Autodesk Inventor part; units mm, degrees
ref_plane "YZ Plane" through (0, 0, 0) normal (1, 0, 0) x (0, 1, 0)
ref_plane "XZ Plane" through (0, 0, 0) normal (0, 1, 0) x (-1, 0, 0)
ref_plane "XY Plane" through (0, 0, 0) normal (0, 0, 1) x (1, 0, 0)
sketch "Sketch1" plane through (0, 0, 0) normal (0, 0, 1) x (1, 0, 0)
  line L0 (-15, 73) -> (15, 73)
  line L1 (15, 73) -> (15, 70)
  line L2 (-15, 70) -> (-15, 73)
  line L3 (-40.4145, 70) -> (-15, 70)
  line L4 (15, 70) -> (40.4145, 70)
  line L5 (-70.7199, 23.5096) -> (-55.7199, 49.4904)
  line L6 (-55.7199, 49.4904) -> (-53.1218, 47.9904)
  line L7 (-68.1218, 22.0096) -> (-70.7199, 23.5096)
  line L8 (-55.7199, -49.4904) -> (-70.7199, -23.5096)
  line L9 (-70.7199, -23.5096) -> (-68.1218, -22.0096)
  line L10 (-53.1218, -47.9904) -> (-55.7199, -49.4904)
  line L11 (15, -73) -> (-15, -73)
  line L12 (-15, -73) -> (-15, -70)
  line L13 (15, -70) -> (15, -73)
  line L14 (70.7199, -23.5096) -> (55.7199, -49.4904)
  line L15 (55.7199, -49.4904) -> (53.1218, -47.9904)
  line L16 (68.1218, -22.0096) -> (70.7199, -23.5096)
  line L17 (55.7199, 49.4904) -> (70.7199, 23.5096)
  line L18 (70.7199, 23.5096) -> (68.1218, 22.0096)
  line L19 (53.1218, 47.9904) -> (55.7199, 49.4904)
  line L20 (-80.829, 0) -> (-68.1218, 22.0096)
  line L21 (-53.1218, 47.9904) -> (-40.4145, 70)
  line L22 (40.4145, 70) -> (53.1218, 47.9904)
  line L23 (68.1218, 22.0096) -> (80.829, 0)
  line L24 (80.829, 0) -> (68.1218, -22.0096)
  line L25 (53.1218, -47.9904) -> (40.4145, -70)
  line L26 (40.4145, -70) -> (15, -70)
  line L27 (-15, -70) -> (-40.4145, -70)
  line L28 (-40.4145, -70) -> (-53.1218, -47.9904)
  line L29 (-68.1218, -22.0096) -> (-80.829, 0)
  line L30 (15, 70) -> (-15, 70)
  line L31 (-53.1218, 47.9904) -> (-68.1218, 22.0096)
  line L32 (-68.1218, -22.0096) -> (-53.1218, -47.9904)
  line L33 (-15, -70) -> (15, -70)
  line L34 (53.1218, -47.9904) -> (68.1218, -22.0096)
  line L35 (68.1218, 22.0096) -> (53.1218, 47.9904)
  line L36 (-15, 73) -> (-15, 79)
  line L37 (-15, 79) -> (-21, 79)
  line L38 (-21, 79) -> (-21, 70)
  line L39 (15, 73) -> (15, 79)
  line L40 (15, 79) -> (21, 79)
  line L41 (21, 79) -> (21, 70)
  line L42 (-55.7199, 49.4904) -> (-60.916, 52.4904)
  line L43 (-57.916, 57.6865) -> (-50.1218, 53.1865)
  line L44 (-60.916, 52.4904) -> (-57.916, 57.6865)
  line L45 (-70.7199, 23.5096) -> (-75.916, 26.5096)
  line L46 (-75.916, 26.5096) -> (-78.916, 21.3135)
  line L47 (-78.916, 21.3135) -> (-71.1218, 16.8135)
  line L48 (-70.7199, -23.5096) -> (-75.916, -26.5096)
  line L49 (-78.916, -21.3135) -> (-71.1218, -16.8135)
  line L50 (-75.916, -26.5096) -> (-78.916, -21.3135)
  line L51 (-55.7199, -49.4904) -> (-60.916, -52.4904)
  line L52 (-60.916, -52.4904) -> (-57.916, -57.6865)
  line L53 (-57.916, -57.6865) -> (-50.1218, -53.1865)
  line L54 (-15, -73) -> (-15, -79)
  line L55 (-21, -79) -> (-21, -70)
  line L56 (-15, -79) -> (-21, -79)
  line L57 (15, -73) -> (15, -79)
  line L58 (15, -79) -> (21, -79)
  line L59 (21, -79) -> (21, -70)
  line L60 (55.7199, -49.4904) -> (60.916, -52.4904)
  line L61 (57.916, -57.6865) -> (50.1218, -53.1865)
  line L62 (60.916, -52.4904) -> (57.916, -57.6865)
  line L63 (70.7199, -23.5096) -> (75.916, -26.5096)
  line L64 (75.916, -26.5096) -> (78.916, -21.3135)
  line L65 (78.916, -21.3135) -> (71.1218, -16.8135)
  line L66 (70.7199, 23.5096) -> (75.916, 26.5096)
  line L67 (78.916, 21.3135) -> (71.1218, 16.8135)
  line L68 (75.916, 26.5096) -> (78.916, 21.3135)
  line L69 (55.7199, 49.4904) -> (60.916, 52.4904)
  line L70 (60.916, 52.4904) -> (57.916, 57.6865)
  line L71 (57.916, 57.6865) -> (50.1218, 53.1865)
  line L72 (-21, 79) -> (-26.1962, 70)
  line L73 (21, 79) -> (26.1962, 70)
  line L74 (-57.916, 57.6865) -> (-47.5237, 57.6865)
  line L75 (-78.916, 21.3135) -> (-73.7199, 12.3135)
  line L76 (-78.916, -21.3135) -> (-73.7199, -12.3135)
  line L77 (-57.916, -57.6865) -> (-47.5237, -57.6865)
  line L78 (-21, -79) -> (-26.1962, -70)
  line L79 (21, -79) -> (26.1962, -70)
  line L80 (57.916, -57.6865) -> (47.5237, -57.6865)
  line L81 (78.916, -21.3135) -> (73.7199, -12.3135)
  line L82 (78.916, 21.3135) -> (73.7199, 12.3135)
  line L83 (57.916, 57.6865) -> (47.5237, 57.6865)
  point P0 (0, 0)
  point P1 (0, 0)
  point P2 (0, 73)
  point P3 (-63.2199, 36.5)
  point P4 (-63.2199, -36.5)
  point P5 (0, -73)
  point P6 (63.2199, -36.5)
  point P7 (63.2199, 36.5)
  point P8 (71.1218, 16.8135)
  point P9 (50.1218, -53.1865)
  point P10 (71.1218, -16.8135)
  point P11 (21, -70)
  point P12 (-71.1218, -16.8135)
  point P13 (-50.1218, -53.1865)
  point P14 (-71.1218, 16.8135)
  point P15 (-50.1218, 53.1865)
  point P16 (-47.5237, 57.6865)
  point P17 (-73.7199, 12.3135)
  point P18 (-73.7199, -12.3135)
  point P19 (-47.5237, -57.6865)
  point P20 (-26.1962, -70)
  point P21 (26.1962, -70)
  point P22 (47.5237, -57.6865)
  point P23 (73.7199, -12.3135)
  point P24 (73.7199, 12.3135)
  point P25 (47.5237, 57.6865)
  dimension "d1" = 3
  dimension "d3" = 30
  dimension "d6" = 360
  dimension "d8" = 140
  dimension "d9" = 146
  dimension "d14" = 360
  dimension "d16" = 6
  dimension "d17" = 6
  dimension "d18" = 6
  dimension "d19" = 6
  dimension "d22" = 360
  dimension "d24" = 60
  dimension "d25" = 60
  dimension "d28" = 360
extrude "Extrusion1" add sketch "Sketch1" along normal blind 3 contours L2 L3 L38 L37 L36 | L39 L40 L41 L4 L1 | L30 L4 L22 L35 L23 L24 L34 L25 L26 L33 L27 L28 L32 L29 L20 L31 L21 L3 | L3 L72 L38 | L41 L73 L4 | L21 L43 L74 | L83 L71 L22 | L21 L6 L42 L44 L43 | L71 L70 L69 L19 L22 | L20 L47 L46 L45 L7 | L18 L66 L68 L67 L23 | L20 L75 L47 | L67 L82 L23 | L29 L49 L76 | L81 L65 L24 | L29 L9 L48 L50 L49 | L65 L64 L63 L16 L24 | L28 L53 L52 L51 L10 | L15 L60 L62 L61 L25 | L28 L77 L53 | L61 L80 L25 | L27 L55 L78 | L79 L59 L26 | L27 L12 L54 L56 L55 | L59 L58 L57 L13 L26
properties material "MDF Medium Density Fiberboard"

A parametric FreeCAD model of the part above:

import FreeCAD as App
import Part
import Sketcher

V = App.Vector
Q = App.Units.Quantity

doc = App.newDocument("Part")
body = doc.addObject("PartDesign::Body", "Body")

# Sketch on XY plane
sketch1 = body.newObject("Sketcher::SketchObject", "Sketch")
sketch1.AttachmentSupport = (doc.getObject("XY_Plane"), [""])
sketch1.MapMode = "FlatFace"
sketch1.addGeometry([
    Part.LineSegment(V(-15, 70, 0), V(-15, 79, 0)),  # 0
    Part.LineSegment(V(-15, 79, 0), V(-21, 79, 0)),  # 1
    Part.LineSegment(V(-21, 79, 0), V(-26.1962, 70, 0)),  # 2
    Part.LineSegment(V(-26.1962, 70, 0), V(-40.4145, 70, 0)),  # 3
    Part.LineSegment(V(-40.4145, 70, 0), V(-47.523724, 57.686514, 0)),  # 4
    Part.LineSegment(V(-47.5237, 57.6865, 0), V(-57.916, 57.6865, 0)),  # 5
    Part.LineSegment(V(-57.916, 57.6865, 0), V(-60.916, 52.4904, 0)),  # 6
    Part.LineSegment(V(-60.916, 52.4904, 0), V(-55.7199, 49.4904, 0)),  # 7
    Part.LineSegment(V(-55.7199, 49.4904, 0), V(-53.1218, 47.9904, 0)),  # 8
    Part.LineSegment(V(-53.1218, 47.9904, 0), V(-68.1218, 22.0096, 0)),  # 9
    Part.LineSegment(V(-68.1218, 22.0096, 0), V(-70.7199, 23.5096, 0)),  # 10
    Part.LineSegment(V(-70.7199, 23.5096, 0), V(-75.916, 26.5096, 0)),  # 11
    Part.LineSegment(V(-75.916, 26.5096, 0), V(-78.916, 21.3135, 0)),  # 12
    Part.LineSegment(V(-78.916, 21.3135, 0), V(-73.7199, 12.3135, 0)),  # 13
    Part.LineSegment(V(-73.719843, 12.313467, 0), V(-80.829, 0, 0)),  # 14
    Part.LineSegment(V(-80.829, 0, 0), V(-73.719843, -12.313467, 0)),  # 15
    Part.LineSegment(V(-73.7199, -12.3135, 0), V(-78.916, -21.3135, 0)),  # 16
    Part.LineSegment(V(-78.916, -21.3135, 0), V(-75.916, -26.5096, 0)),  # 17
    Part.LineSegment(V(-75.916, -26.5096, 0), V(-70.7199, -23.5096, 0)),  # 18
    Part.LineSegment(V(-70.7199, -23.5096, 0), V(-68.1218, -22.0096, 0)),  # 19
    Part.LineSegment(V(-68.1218, -22.0096, 0), V(-53.1218, -47.9904, 0)),  # 20
    Part.LineSegment(V(-53.1218, -47.9904, 0), V(-55.7199, -49.4904, 0)),  # 21
    Part.LineSegment(V(-55.7199, -49.4904, 0), V(-60.916, -52.4904, 0)),  # 22
    Part.LineSegment(V(-60.916, -52.4904, 0), V(-57.916, -57.6865, 0)),  # 23
    Part.LineSegment(V(-57.916, -57.6865, 0), V(-47.5237, -57.6865, 0)),  # 24
    Part.LineSegment(V(-47.523724, -57.686514, 0), V(-40.4145, -70, 0)),  # 25
    Part.LineSegment(V(-40.4145, -70, 0), V(-26.1962, -70, 0)),  # 26
    Part.LineSegment(V(-26.1962, -70, 0), V(-21, -79, 0)),  # 27
    Part.LineSegment(V(-21, -79, 0), V(-15, -79, 0)),  # 28
    Part.LineSegment(V(-15, -79, 0), V(-15, -70, 0)),  # 29
    Part.LineSegment(V(-15, -70, 0), V(15, -70, 0)),  # 30
    Part.LineSegment(V(15, -70, 0), V(15, -79, 0)),  # 31
    Part.LineSegment(V(15, -79, 0), V(21, -79, 0)),  # 32
    Part.LineSegment(V(21, -79, 0), V(26.1962, -70, 0)),  # 33
    Part.LineSegment(V(26.1962, -70, 0), V(40.4145, -70, 0)),  # 34
    Part.LineSegment(V(40.4145, -70, 0), V(47.523724, -57.686514, 0)),  # 35
    Part.LineSegment(V(47.5237, -57.6865, 0), V(57.916, -57.6865, 0)),  # 36
    Part.LineSegment(V(57.916, -57.6865, 0), V(60.916, -52.4904, 0)),  # 37
    Part.LineSegment(V(60.916, -52.4904, 0), V(55.7199, -49.4904, 0)),  # 38
    Part.LineSegment(V(55.7199, -49.4904, 0), V(53.1218, -47.9904, 0)),  # 39
    Part.LineSegment(V(53.1218, -47.9904, 0), V(68.1218, -22.0096, 0)),  # 40
    Part.LineSegment(V(68.1218, -22.0096, 0), V(70.7199, -23.5096, 0)),  # 41
    Part.LineSegment(V(70.7199, -23.5096, 0), V(75.916, -26.5096, 0)),  # 42
    Part.LineSegment(V(75.916, -26.5096, 0), V(78.916, -21.3135, 0)),  # 43
    Part.LineSegment(V(78.916, -21.3135, 0), V(73.7199, -12.3135, 0)),  # 44
    Part.LineSegment(V(73.719843, -12.313467, 0), V(80.829, 0, 0)),  # 45
    Part.LineSegment(V(80.829, 0, 0), V(73.719843, 12.313467, 0)),  # 46
    Part.LineSegment(V(73.7199, 12.3135, 0), V(78.916, 21.3135, 0)),  # 47
    Part.LineSegment(V(78.916, 21.3135, 0), V(75.916, 26.5096, 0)),  # 48
    Part.LineSegment(V(75.916, 26.5096, 0), V(70.7199, 23.5096, 0)),  # 49
    Part.LineSegment(V(70.7199, 23.5096, 0), V(68.1218, 22.0096, 0)),  # 50
    Part.LineSegment(V(68.1218, 22.0096, 0), V(53.1218, 47.9904, 0)),  # 51
    Part.LineSegment(V(53.1218, 47.9904, 0), V(55.7199, 49.4904, 0)),  # 52
    Part.LineSegment(V(55.7199, 49.4904, 0), V(60.916, 52.4904, 0)),  # 53
    Part.LineSegment(V(60.916, 52.4904, 0), V(57.916, 57.6865, 0)),  # 54
    Part.LineSegment(V(57.916, 57.6865, 0), V(47.5237, 57.6865, 0)),  # 55
    Part.LineSegment(V(47.523724, 57.686514, 0), V(40.4145, 70, 0)),  # 56
    Part.LineSegment(V(40.4145, 70, 0), V(26.1962, 70, 0)),  # 57
    Part.LineSegment(V(26.1962, 70, 0), V(21, 79, 0)),  # 58
    Part.LineSegment(V(21, 79, 0), V(15, 79, 0)),  # 59
    Part.LineSegment(V(15, 79, 0), V(15, 70, 0)),  # 60
    Part.LineSegment(V(15, 70, 0), V(-15, 70, 0)),  # 61
], False)
sketch1.addConstraint([
    Sketcher.Constraint("Coincident", 0, 2, 1, 1),
    Sketcher.Constraint("Coincident", 1, 2, 2, 1),
    Sketcher.Constraint("Coincident", 2, 2, 3, 1),
    Sketcher.Constraint("Coincident", 3, 2, 4, 1),
    Sketcher.Constraint("Coincident", 4, 2, 5, 1),
    Sketcher.Constraint("Coincident", 5, 2, 6, 1),
    Sketcher.Constraint("Coincident", 6, 2, 7, 1),
    Sketcher.Constraint("Coincident", 7, 2, 8, 1),
    Sketcher.Constraint("Coincident", 8, 2, 9, 1),
    Sketcher.Constraint("Coincident", 9, 2, 10, 1),
    Sketcher.Constraint("Coincident", 10, 2, 11, 1),
    Sketcher.Constraint("Coincident", 11, 2, 12, 1),
    Sketcher.Constraint("Coincident", 12, 2, 13, 1),
    Sketcher.Constraint("Coincident", 13, 2, 14, 1),
    Sketcher.Constraint("Coincident", 14, 2, 15, 1),
    Sketcher.Constraint("Coincident", 15, 2, 16, 1),
    Sketcher.Constraint("Coincident", 16, 2, 17, 1),
    Sketcher.Constraint("Coincident", 17, 2, 18, 1),
    Sketcher.Constraint("Coincident", 18, 2, 19, 1),
    Sketcher.Constraint("Coincident", 19, 2, 20, 1),
    Sketcher.Constraint("Coincident", 20, 2, 21, 1),
    Sketcher.Constraint("Coincident", 21, 2, 22, 1),
    Sketcher.Constraint("Coincident", 22, 2, 23, 1),
    Sketcher.Constraint("Coincident", 23, 2, 24, 1),
    Sketcher.Constraint("Coincident", 24, 2, 25, 1),
    Sketcher.Constraint("Coincident", 25, 2, 26, 1),
    Sketcher.Constraint("Coincident", 26, 2, 27, 1),
    Sketcher.Constraint("Coincident", 27, 2, 28, 1),
    Sketcher.Constraint("Coincident", 28, 2, 29, 1),
    Sketcher.Constraint("Coincident", 29, 2, 30, 1),
    Sketcher.Constraint("Coincident", 30, 2, 31, 1),
    Sketcher.Constraint("Coincident", 31, 2, 32, 1),
    Sketcher.Constraint("Coincident", 32, 2, 33, 1),
    Sketcher.Constraint("Coincident", 33, 2, 34, 1),
    Sketcher.Constraint("Coincident", 34, 2, 35, 1),
    Sketcher.Constraint("Coincident", 35, 2, 36, 1),
    Sketcher.Constraint("Coincident", 36, 2, 37, 1),
    Sketcher.Constraint("Coincident", 37, 2, 38, 1),
    Sketcher.Constraint("Coincident", 38, 2, 39, 1),
    Sketcher.Constraint("Coincident", 39, 2, 40, 1),
    Sketcher.Constraint("Coincident", 40, 2, 41, 1),
    Sketcher.Constraint("Coincident", 41, 2, 42, 1),
    Sketcher.Constraint("Coincident", 42, 2, 43, 1),
    Sketcher.Constraint("Coincident", 43, 2, 44, 1),
    Sketcher.Constraint("Coincident", 44, 2, 45, 1),
    Sketcher.Constraint("Coincident", 45, 2, 46, 1),
    Sketcher.Constraint("Coincident", 46, 2, 47, 1),
    Sketcher.Constraint("Coincident", 47, 2, 48, 1),
    Sketcher.Constraint("Coincident", 48, 2, 49, 1),
    Sketcher.Constraint("Coincident", 49, 2, 50, 1),
    Sketcher.Constraint("Coincident", 50, 2, 51, 1),
    Sketcher.Constraint("Coincident", 51, 2, 52, 1),
    Sketcher.Constraint("Coincident", 52, 2, 53, 1),
    Sketcher.Constraint("Coincident", 53, 2, 54, 1),
    Sketcher.Constraint("Coincident", 54, 2, 55, 1),
    Sketcher.Constraint("Coincident", 55, 2, 56, 1),
    Sketcher.Constraint("Coincident", 56, 2, 57, 1),
    Sketcher.Constraint("Coincident", 57, 2, 58, 1),
    Sketcher.Constraint("Coincident", 58, 2, 59, 1),
    Sketcher.Constraint("Coincident", 59, 2, 60, 1),
    Sketcher.Constraint("Coincident", 60, 2, 61, 1),
    Sketcher.Constraint("Coincident", 61, 2, 0, 1),
    Sketcher.Constraint("Vertical", 0),
    Sketcher.Constraint("Horizontal", 1),
    Sketcher.Constraint("Horizontal", 3),
    Sketcher.Constraint("Horizontal", 5),
    Sketcher.Constraint("Horizontal", 24),
    Sketcher.Constraint("Horizontal", 26),
    Sketcher.Constraint("Horizontal", 28),
    Sketcher.Constraint("Vertical", 29),
    Sketcher.Constraint("Horizontal", 30),
    Sketcher.Constraint("Vertical", 31),
    Sketcher.Constraint("Horizontal", 32),
    Sketcher.Constraint("Horizontal", 34),
    Sketcher.Constraint("Horizontal", 36),
    Sketcher.Constraint("Horizontal", 55),
    Sketcher.Constraint("Horizontal", 57),
    Sketcher.Constraint("Horizontal", 59),
    Sketcher.Constraint("Vertical", 60),
    Sketcher.Constraint("Horizontal", 61),
    Sketcher.Constraint("Symmetric", 0, 2, 31, 2, -1, 1),
    Sketcher.Constraint("Symmetric", 2, 2, 33, 2, -1, 1),
    Sketcher.Constraint("Symmetric", 4, 2, 35, 2, -1, 1),
    Sketcher.Constraint("Symmetric", 6, 2, 37, 2, -1, 1),
    Sketcher.Constraint("Symmetric", 7, 2, 38, 2, -1, 1),
    Sketcher.Constraint("Symmetric", 8, 2, 39, 2, -1, 1),
    Sketcher.Constraint("Symmetric", 9, 2, 40, 2, -1, 1),
    Sketcher.Constraint("Symmetric", 10, 2, 41, 2, -1, 1),
    Sketcher.Constraint("Symmetric", 11, 2, 42, 2, -1, 1),
    Sketcher.Constraint("Symmetric", 12, 2, 43, 2, -1, 1),
    Sketcher.Constraint("Symmetric", 13, 2, 44, 2, -1, 1),
    Sketcher.Constraint("Symmetric", 14, 2, 45, 2, -1, 1),
    Sketcher.Constraint("Symmetric", 15, 2, 46, 2, -1, 1),
    Sketcher.Constraint("Symmetric", 16, 2, 47, 2, -1, 1),
    Sketcher.Constraint("Symmetric", 17, 2, 48, 2, -1, 1),
    Sketcher.Constraint("Symmetric", 18, 2, 49, 2, -1, 1),
    Sketcher.Constraint("Symmetric", 19, 2, 50, 2, -1, 1),
    Sketcher.Constraint("Symmetric", 20, 2, 51, 2, -1, 1),
    Sketcher.Constraint("Symmetric", 21, 2, 52, 2, -1, 1),
    Sketcher.Constraint("Symmetric", 22, 2, 53, 2, -1, 1),
    Sketcher.Constraint("Symmetric", 23, 2, 54, 2, -1, 1),
    Sketcher.Constraint("Symmetric", 25, 2, 56, 2, -1, 1),
    Sketcher.Constraint("Symmetric", 27, 2, 58, 2, -1, 1),
    Sketcher.Constraint("Symmetric", 29, 2, 60, 2, -1, 1),
    Sketcher.Constraint("Symmetric", 28, 2, 31, 2, -2),
    Sketcher.Constraint("Symmetric", 26, 2, 33, 2, -2),
    Sketcher.Constraint("Symmetric", 24, 2, 35, 2, -2),
    Sketcher.Constraint("Symmetric", 22, 2, 37, 2, -2),
    Sketcher.Constraint("Symmetric", 21, 2, 38, 2, -2),
    Sketcher.Constraint("Symmetric", 20, 2, 39, 2, -2),
    Sketcher.Constraint("Symmetric", 19, 2, 40, 2, -2),
    Sketcher.Constraint("Symmetric", 18, 2, 41, 2, -2),
    Sketcher.Constraint("Symmetric", 17, 2, 42, 2, -2),
    Sketcher.Constraint("Symmetric", 16, 2, 43, 2, -2),
    Sketcher.Constraint("Symmetric", 15, 2, 44, 2, -2),
    Sketcher.Constraint("PointOnObject", 14, 2, -1),
    Sketcher.Constraint("Parallel", 2, 4),
    Sketcher.Constraint("Parallel", 4, 6),
    Sketcher.Constraint("Perpendicular", 6, 7),
    Sketcher.Constraint("Parallel", 7, 8),
    Sketcher.Constraint("Perpendicular", 8, 9),
    Sketcher.Constraint("Perpendicular", 9, 10),
    Sketcher.Constraint("Parallel", 10, 11),
    Sketcher.Constraint("Perpendicular", 11, 12),
    Sketcher.Constraint("Parallel", 12, 14),
    Sketcher.Constraint("Parallel", 13, 15),
    Sketcher.Constraint("Perpendicular", 22, 23),
    Sketcher.Constraint("Parallel", 23, 25),
    Sketcher.Constraint("Parallel", 25, 27),
    Sketcher.Constraint("Parallel", 16, 33),
    Sketcher.Constraint("Parallel", 33, 35),
    Sketcher.Constraint("Parallel", 35, 37),
    Sketcher.Constraint("Parallel", 54, 56),
    Sketcher.Constraint("Parallel", 56, 58),
    Sketcher.Constraint("Horizontal", 26, 2, 29, 2),
    Sketcher.Constraint("Equal", 6, 7),
    Sketcher.Constraint("Equal", 8, 10),
    Sketcher.Constraint("Equal", 7, 11),
    Sketcher.Constraint("Equal", 11, 12),
    Sketcher.Constraint("Equal", 2, 13),
    Sketcher.Constraint("Equal", 4, 14),
    Sketcher.Constraint("DistanceX", 1, 2, 1, 1, Q("6 mm")),
    Sketcher.Constraint("DistanceX", 30, 1, 30, 2, Q("30 mm")),
    Sketcher.Constraint("Angle", 7, Q("-30.0003 deg")),
    Sketcher.Constraint("Distance", 6, Q("6 mm")),
    Sketcher.Constraint("Distance", 8, Q("3 mm")),
    Sketcher.Constraint("Distance", 9, Q("30 mm")),
    Sketcher.Constraint("DistanceY", 0, 1, 0, 2, Q("9 mm")),
    Sketcher.Constraint("DistanceY", -1, 1, 0, 2, Q("79 mm")),
    Sketcher.Constraint("DistanceX", 7, 2, -1, 1, Q("55.72 mm")),
    Sketcher.Constraint("DistanceX", 3, 2, 3, 1, Q("14.2183 mm")),
])
pad1 = body.newObject("PartDesign::Pad", "Pad")
pad1.Profile = sketch1
pad1.Length = 3

doc.recompute()
